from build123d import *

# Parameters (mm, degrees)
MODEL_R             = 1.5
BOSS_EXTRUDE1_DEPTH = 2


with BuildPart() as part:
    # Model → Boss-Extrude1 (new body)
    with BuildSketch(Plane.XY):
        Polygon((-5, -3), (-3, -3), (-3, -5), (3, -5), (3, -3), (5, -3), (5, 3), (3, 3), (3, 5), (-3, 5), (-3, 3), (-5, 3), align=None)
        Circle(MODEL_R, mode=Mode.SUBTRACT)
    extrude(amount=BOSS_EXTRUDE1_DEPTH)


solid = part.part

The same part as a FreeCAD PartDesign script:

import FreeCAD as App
import Part
import Sketcher
from FreeCAD import Vector


def add_polygon(sketch, points):
    """Adds a closed chain of lines whose ends are joined by coincident constraints."""
    first, n = sketch.GeometryCount, len(points)
    for a, b in zip(points, points[1:] + points[:1]):
        sketch.addGeometry(Part.LineSegment(App.Vector(*a, 0), App.Vector(*b, 0)), False)
    for i in range(n):
        sketch.addConstraint(Sketcher.Constraint("Coincident", first + i, 2, first + (i + 1) % n, 1))

doc = App.newDocument("Part")
body = doc.addObject("PartDesign::Body", "Body")

# Sketch on XY plane
sketch1 = body.newObject("Sketcher::SketchObject", "Sketch")
sketch1.AttachmentSupport = (doc.getObject("XY_Plane"), [""])
sketch1.MapMode = "FlatFace"
add_polygon(sketch1, [(-5, -3), (-3, -3), (-3, -5), (3, -5), (3, -3), (5, -3), (5, 3), (3, 3), (3, 5), (-3, 5), (-3, 3), (-5, 3)])  # lines 0-11
sketch1.addGeometry(Part.Circle(Vector(0, 0, 0), Vector(0, 0, 1), 1.5), False)  # 12
sketch1.addConstraint(Sketcher.Constraint("Horizontal", 0))
sketch1.addConstraint(Sketcher.Constraint("Vertical", 1))
sketch1.addConstraint(Sketcher.Constraint("Horizontal", 2))
sketch1.addConstraint(Sketcher.Constraint("Vertical", 3))
sketch1.addConstraint(Sketcher.Constraint("Horizontal", 4))
sketch1.addConstraint(Sketcher.Constraint("Vertical", 5))
sketch1.addConstraint(Sketcher.Constraint("Horizontal", 6))
sketch1.addConstraint(Sketcher.Constraint("Vertical", 7))
sketch1.addConstraint(Sketcher.Constraint("Horizontal", 8))
sketch1.addConstraint(Sketcher.Constraint("Vertical", 9))
sketch1.addConstraint(Sketcher.Constraint("Horizontal", 10))
sketch1.addConstraint(Sketcher.Constraint("Vertical", 11))
sketch1.addConstraint(Sketcher.Constraint("Coincident", 12, 3, -1, 1))
sketch1.addConstraint(Sketcher.Constraint("Symmetric", 0, 2, 6, 2, -1, 1))
sketch1.addConstraint(Sketcher.Constraint("Symmetric", 2, 2, 8, 2, -1, 1))
sketch1.addConstraint(Sketcher.Constraint("Symmetric", 4, 2, 10, 2, -1, 1))
sketch1.addConstraint(Sketcher.Constraint("Symmetric", 0, 2, 3, 2, -2))
sketch1.addConstraint(Sketcher.Constraint("Equal", 10, 1))
sketch1.addConstraint(Sketcher.Constraint("Equal", 8, 5))
sketch1.addConstraint(Sketcher.Constraint("Diameter", 12, 3.0))
sketch1.addConstraint(Sketcher.Constraint("DistanceX", 0, 1, 0, 2, 2.0))
sketch1.addConstraint(Sketcher.Constraint("DistanceX", 2, 1, 2, 2, 6.0))
pad1 = body.newObject("PartDesign::Pad", "Pad")
pad1.Profile = sketch1
pad1.Length = 2

doc.recompute()
